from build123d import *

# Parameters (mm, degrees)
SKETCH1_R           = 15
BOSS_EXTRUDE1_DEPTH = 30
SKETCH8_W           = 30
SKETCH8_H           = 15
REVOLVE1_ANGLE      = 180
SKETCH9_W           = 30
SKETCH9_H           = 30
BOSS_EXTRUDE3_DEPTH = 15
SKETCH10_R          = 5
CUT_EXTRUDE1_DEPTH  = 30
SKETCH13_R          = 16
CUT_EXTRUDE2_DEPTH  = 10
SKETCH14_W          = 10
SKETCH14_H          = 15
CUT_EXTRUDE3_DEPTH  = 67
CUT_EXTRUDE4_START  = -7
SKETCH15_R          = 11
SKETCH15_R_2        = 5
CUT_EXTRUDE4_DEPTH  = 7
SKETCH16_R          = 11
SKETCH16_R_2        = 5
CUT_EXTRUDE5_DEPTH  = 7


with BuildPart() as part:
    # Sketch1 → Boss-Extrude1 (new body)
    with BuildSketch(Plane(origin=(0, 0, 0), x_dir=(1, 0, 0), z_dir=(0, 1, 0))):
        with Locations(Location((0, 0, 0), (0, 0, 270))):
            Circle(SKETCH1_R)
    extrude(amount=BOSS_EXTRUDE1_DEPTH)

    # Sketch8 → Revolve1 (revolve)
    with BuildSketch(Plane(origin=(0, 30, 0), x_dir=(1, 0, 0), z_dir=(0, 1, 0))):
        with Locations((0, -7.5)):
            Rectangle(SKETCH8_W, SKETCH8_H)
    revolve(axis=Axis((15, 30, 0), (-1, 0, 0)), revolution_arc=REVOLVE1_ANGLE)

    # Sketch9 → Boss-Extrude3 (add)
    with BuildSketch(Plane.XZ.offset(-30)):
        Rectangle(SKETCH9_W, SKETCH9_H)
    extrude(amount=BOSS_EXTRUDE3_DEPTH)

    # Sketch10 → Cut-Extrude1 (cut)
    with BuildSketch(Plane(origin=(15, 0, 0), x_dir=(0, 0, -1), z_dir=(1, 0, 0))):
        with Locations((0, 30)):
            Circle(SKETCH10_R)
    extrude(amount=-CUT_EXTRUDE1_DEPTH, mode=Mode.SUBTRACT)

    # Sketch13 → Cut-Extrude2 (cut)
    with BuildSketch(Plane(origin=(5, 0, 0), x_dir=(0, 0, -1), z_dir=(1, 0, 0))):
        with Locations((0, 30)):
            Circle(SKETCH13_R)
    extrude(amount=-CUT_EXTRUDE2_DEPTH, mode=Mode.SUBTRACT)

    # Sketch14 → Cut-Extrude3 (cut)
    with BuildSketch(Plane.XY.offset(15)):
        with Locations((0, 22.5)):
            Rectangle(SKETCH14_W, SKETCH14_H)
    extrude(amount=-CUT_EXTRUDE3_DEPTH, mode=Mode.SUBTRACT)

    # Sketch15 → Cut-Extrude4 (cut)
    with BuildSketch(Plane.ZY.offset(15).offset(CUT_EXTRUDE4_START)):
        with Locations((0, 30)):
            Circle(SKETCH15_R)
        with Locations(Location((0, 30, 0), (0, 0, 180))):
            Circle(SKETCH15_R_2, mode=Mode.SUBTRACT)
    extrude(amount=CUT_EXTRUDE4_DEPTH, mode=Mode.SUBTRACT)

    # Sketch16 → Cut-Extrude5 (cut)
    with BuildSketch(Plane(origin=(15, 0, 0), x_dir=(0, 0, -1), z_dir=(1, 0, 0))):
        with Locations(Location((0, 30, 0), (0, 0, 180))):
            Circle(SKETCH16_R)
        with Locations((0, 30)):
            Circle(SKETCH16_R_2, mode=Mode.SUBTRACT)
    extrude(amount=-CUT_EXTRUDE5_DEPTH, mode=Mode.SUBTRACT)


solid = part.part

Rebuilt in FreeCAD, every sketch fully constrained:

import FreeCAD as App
import Part
import Sketcher
from FreeCAD import Vector

doc = App.newDocument("Part")
body = doc.addObject("PartDesign::Body", "Body")

# Sketch on XZ plane
sketch1 = body.newObject("Sketcher::SketchObject", "Sketch")
sketch1.AttachmentSupport = (doc.getObject("XZ_Plane"), [""])
sketch1.MapMode = "FlatFace"
sketch1.addGeometry(Part.Circle(Vector(0, 0, 0), Vector(0, 0, 1), 15), False)
sketch1.addConstraint([
    Sketcher.Constraint("Coincident", 0, 3, -1, 1),
    Sketcher.Constraint("Diameter", 0, 30.0),
])
pad1 = body.newObject("PartDesign::Pad", "Pad")
pad1.Profile = sketch1
pad1.Length = 30
pad1.Reversed = True

# Sketch on XZ plane
sketch2 = body.newObject("Sketcher::SketchObject", "Sketch001")
sketch2.AttachmentSupport = (doc.getObject("XZ_Plane"), [""])
sketch2.MapMode = "FlatFace"
sketch2.AttachmentOffset = App.Placement(Vector(0, 0, -30), App.Rotation())
sketch2.addGeometry([
    Part.LineSegment(Vector(-15, 0, 0), Vector(-15, 15, 0)),
    Part.LineSegment(Vector(-15, 15, 0), Vector(15, 15, 0)),
    Part.LineSegment(Vector(15, 15, 0), Vector(15, 0, 0)),
    Part.LineSegment(Vector(15, 0, 0), Vector(-15, 0, 0)),
], False)
sketch2.addConstraint([
    Sketcher.Constraint("Coincident", 0, 2, 1, 1),
    Sketcher.Constraint("Coincident", 1, 2, 2, 1),
    Sketcher.Constraint("Coincident", 2, 2, 3, 1),
    Sketcher.Constraint("Coincident", 3, 2, 0, 1),
    Sketcher.Constraint("Vertical", 0),
    Sketcher.Constraint("Horizontal", 1),
    Sketcher.Constraint("Vertical", 2),
    Sketcher.Constraint("Horizontal", 3),
    Sketcher.Constraint("Symmetric", 2, 2, 3, 2, -1, 1),
    Sketcher.Constraint("DistanceX", 1, 1, 1, 2, 30.0),
    Sketcher.Constraint("DistanceY", 0, 1, 0, 2, 15.0),
])
revolution = body.newObject("PartDesign::Revolution", "Revolution")
revolution.Profile = sketch2
revolution.ReferenceAxis = (sketch2, ["H_Axis"])
revolution.Angle = 180
revolution.Reversed = True

# Sketch on XZ plane
sketch3 = body.newObject("Sketcher::SketchObject", "Sketch002")
sketch3.AttachmentSupport = (doc.getObject("XZ_Plane"), [""])
sketch3.MapMode = "FlatFace"
sketch3.AttachmentOffset = App.Placement(Vector(0, 0, -30), App.Rotation())
sketch3.addGeometry([
    Part.LineSegment(Vector(-15, 15, 0), Vector(-15, -15, 0)),
    Part.LineSegment(Vector(-15, -15, 0), Vector(15, -15, 0)),
    Part.LineSegment(Vector(15, -15, 0), Vector(15, 15, 0)),
    Part.LineSegment(Vector(15, 15, 0), Vector(-15, 15, 0)),
], False)
sketch3.addConstraint([
    Sketcher.Constraint("Coincident", 0, 2, 1, 1),
    Sketcher.Constraint("Coincident", 1, 2, 2, 1),
    Sketcher.Constraint("Coincident", 2, 2, 3, 1),
    Sketcher.Constraint("Coincident", 3, 2, 0, 1),
    Sketcher.Constraint("Vertical", 0),
    Sketcher.Constraint("Horizontal", 1),
    Sketcher.Constraint("Vertical", 2),
    Sketcher.Constraint("Horizontal", 3),
    Sketcher.Constraint("Symmetric", 0, 2, 2, 2, -1, 1),
    Sketcher.Constraint("Equal", 3, 0),
    Sketcher.Constraint("DistanceX", 1, 1, 1, 2, 30.0),
])
pad2 = body.newObject("PartDesign::Pad", "Pad001")
pad2.Profile = sketch3
pad2.Length = 15

# Sketch on YZ plane
sketch4 = body.newObject("Sketcher::SketchObject", "Sketch003")
sketch4.AttachmentSupport = (doc.getObject("YZ_Plane"), [""])
sketch4.MapMode = "FlatFace"
sketch4.AttachmentOffset = App.Placement(Vector(0, 0, 15), App.Rotation())
sketch4.addGeometry(Part.Circle(Vector(30, 0, 0), Vector(0, 0, 1), 5), False)
sketch4.addConstraint([
    Sketcher.Constraint("PointOnObject", 0, 3, -1),
    Sketcher.Constraint("Diameter", 0, 10.0),
    Sketcher.Constraint("DistanceX", -1, 1, 0, 3, 30.0),
])
pocket1 = body.newObject("PartDesign::Pocket", "Pocket")
pocket1.Profile = sketch4
pocket1.Length = 30

# Sketch on YZ plane
sketch5 = body.newObject("Sketcher::SketchObject", "Sketch004")
sketch5.AttachmentSupport = (doc.getObject("YZ_Plane"), [""])
sketch5.MapMode = "FlatFace"
sketch5.AttachmentOffset = App.Placement(Vector(0, 0, 5), App.Rotation())
sketch5.addGeometry(Part.Circle(Vector(30, 0, 0), Vector(0, 0, 1), 16), False)
sketch5.addConstraint([
    Sketcher.Constraint("PointOnObject", 0, 3, -1),
    Sketcher.Constraint("Diameter", 0, 32.0),
    Sketcher.Constraint("DistanceX", -1, 1, 0, 3, 30.0),
])
pocket2 = body.newObject("PartDesign::Pocket", "Pocket001")
pocket2.Profile = sketch5
pocket2.Length = 10

# Sketch on XY plane
sketch6 = body.newObject("Sketcher::SketchObject", "Sketch005")
sketch6.AttachmentSupport = (doc.getObject("XY_Plane"), [""])
sketch6.MapMode = "FlatFace"
sketch6.AttachmentOffset = App.Placement(Vector(0, 0, 15), App.Rotation())
sketch6.addGeometry([
    Part.LineSegment(Vector(-5, 30, 0), Vector(-5, 15, 0)),
    Part.LineSegment(Vector(-5, 15, 0), Vector(5, 15, 0)),
    Part.LineSegment(Vector(5, 15, 0), Vector(5, 30, 0)),
    Part.LineSegment(Vector(5, 30, 0), Vector(-5, 30, 0)),
], False)
sketch6.addConstraint([
    Sketcher.Constraint("Coincident", 0, 2, 1, 1),
    Sketcher.Constraint("Coincident", 1, 2, 2, 1),
    Sketcher.Constraint("Coincident", 2, 2, 3, 1),
    Sketcher.Constraint("Coincident", 3, 2, 0, 1),
    Sketcher.Constraint("Vertical", 0),
    Sketcher.Constraint("Horizontal", 1),
    Sketcher.Constraint("Vertical", 2),
    Sketcher.Constraint("Horizontal", 3),
    Sketcher.Constraint("DistanceX", 1, 1, 1, 2, 10.0),
    Sketcher.Constraint("DistanceY", 0, 2, 0, 1, 15.0),
    Sketcher.Constraint("DistanceX", 0, 2, -1, 1, 5.0),
    Sketcher.Constraint("DistanceY", -1, 1, 0, 2, 15.0),
])
pocket3 = body.newObject("PartDesign::Pocket", "Pocket002")
pocket3.Profile = sketch6
pocket3.Length = 67

# Sketch on YZ plane
sketch7 = body.newObject("Sketcher::SketchObject", "Sketch006")
sketch7.AttachmentSupport = (doc.getObject("YZ_Plane"), [""])
sketch7.MapMode = "FlatFace"
sketch7.AttachmentOffset = App.Placement(Vector(0, 0, -8), App.Rotation())
sketch7.addGeometry([
    Part.Circle(Vector(30, 0, 0), Vector(0, 0, 1), 11),
    Part.Circle(Vector(30, 0, 0), Vector(0, 0, 1), 5),
], False)
sketch7.addConstraint([
    Sketcher.Constraint("Coincident", 1, 3, 0, 3),
    Sketcher.Constraint("PointOnObject", 0, 3, -1),
    Sketcher.Constraint("Diameter", 0, 22.0),
    Sketcher.Constraint("Diameter", 1, 10.0),
    Sketcher.Constraint("DistanceX", -1, 1, 0, 3, 30.0),
])
pocket4 = body.newObject("PartDesign::Pocket", "Pocket003")
pocket4.Profile = sketch7
pocket4.Length = 7

# Sketch on YZ plane
sketch8 = body.newObject("Sketcher::SketchObject", "Sketch007")
sketch8.AttachmentSupport = (doc.getObject("YZ_Plane"), [""])
sketch8.MapMode = "FlatFace"
sketch8.AttachmentOffset = App.Placement(Vector(0, 0, 15), App.Rotation())
sketch8.addGeometry([
    Part.Circle(Vector(30, 0, 0), Vector(0, 0, 1), 11),
    Part.Circle(Vector(30, 0, 0), Vector(0, 0, 1), 5),
], False)
sketch8.addConstraint([
    Sketcher.Constraint("Coincident", 1, 3, 0, 3),
    Sketcher.Constraint("PointOnObject", 0, 3, -1),
    Sketcher.Constraint("Diameter", 0, 22.0),
    Sketcher.Constraint("Diameter", 1, 10.0),
    Sketcher.Constraint("DistanceX", -1, 1, 0, 3, 30.0),
])
pocket5 = body.newObject("PartDesign::Pocket", "Pocket004")
pocket5.Profile = sketch8
pocket5.Length = 7

doc.recompute()
